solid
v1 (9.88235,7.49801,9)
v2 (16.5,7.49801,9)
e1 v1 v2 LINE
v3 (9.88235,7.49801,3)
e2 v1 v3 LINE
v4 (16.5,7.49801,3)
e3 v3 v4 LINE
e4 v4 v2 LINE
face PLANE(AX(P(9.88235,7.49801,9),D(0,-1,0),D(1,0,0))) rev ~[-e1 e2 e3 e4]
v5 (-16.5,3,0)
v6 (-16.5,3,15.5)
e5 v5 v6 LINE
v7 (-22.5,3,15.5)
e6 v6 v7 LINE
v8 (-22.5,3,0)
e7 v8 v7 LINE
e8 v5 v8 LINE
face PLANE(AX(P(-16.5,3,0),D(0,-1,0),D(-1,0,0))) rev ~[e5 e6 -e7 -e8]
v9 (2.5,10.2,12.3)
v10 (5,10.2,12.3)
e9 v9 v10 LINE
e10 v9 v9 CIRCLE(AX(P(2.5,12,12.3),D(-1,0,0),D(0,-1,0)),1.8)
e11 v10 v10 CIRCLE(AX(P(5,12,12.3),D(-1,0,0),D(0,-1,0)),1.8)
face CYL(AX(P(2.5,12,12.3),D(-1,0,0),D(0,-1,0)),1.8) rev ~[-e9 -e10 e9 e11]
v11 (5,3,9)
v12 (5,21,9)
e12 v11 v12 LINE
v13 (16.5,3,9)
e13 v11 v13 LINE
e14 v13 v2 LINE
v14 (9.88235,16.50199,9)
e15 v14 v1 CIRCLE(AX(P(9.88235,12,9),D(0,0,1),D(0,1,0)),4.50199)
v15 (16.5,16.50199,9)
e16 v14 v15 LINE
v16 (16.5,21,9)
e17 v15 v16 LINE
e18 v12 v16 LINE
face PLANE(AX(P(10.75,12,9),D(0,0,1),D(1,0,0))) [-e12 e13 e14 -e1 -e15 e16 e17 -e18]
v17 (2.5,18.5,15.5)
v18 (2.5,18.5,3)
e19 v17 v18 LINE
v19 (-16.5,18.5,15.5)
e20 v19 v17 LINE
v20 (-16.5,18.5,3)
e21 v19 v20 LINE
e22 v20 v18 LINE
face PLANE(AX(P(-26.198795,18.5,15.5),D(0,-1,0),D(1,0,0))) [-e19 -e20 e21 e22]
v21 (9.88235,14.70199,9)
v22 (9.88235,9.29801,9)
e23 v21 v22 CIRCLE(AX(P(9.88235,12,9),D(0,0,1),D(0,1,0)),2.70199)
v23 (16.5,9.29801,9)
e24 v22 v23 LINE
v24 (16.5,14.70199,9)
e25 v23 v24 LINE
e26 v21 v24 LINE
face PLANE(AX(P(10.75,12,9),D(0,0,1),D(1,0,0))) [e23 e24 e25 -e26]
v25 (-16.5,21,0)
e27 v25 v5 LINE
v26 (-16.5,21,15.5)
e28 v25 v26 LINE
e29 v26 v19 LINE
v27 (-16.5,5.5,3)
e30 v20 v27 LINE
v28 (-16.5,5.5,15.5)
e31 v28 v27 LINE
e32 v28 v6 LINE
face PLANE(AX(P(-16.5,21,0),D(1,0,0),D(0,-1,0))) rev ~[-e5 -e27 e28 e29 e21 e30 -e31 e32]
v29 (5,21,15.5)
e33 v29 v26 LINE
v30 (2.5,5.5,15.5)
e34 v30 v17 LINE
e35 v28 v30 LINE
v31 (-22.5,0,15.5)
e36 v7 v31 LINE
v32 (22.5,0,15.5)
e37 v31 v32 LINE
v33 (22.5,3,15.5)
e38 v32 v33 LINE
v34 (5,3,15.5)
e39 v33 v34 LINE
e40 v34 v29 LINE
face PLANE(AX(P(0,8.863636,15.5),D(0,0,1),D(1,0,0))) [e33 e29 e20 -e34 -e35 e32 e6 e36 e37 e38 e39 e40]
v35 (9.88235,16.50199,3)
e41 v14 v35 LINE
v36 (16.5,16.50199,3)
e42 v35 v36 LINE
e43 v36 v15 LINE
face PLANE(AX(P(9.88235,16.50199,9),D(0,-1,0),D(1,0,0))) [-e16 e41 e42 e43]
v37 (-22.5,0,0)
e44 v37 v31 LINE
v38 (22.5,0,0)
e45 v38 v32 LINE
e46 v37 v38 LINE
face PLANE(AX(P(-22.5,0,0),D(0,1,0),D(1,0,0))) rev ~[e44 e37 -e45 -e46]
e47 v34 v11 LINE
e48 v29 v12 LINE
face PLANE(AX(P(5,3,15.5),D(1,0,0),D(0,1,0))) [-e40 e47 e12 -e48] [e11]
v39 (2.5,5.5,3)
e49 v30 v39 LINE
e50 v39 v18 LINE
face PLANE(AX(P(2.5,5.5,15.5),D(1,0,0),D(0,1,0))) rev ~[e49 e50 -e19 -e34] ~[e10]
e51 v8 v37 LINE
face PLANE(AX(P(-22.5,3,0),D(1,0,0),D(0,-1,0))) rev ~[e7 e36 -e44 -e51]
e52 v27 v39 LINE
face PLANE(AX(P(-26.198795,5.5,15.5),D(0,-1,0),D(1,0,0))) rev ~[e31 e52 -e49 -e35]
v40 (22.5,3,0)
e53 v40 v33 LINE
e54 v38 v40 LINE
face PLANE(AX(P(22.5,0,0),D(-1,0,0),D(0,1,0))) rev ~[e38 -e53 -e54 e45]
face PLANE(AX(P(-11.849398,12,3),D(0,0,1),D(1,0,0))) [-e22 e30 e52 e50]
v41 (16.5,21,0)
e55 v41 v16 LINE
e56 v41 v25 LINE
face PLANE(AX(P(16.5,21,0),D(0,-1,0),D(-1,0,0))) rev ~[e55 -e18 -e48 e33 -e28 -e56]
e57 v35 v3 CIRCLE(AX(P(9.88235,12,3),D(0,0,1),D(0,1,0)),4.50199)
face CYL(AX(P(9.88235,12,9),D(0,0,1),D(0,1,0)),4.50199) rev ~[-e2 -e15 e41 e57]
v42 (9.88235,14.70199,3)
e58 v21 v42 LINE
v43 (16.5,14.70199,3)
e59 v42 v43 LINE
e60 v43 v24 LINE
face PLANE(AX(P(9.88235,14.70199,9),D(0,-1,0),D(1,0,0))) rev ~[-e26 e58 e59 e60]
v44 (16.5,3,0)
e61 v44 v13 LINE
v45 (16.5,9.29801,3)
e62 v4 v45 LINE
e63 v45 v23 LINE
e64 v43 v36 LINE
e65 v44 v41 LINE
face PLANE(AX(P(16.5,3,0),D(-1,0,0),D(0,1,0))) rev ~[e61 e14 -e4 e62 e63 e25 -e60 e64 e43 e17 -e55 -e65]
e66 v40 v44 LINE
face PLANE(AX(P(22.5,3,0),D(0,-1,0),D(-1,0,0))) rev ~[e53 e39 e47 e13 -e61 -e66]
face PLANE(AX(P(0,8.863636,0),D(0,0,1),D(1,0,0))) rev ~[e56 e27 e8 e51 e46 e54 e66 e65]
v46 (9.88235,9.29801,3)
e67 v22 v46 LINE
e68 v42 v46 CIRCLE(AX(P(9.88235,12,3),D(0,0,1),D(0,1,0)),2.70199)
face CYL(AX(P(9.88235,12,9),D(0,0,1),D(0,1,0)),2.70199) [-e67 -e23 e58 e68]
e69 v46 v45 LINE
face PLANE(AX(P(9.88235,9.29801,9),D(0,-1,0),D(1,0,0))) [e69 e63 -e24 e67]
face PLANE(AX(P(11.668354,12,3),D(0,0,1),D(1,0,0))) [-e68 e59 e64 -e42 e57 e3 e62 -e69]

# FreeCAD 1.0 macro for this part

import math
import FreeCAD as App
import Part
import Sketcher
from FreeCAD import Vector


def add_polygon(sketch, points):
    """Adds a closed chain of lines whose ends are joined by coincident constraints."""
    first, n = sketch.GeometryCount, len(points)
    for a, b in zip(points, points[1:] + points[:1]):
        sketch.addGeometry(Part.LineSegment(App.Vector(*a, 0), App.Vector(*b, 0)), False)
    for i in range(n):
        sketch.addConstraint(Sketcher.Constraint("Coincident", first + i, 2, first + (i + 1) % n, 1))

doc = App.newDocument("Part")
params = doc.addObject("Spreadsheet::Sheet", "Params")
for row, (alias, value) in enumerate([
    ("sketch1_width", "6 mm"),
    ("sketch1_width2", "45 mm"),
    ("sketch1_height", "3 mm"),
    ("sketch1_height2", "18 mm"),
    ("pad1_length", "15.5 mm"),
    ("sketch2_height", "18 mm"),
    ("sketch2_width", "11.5 mm"),
    ("pocket1_length", "6.5 mm"),
    ("sketch3_height", "13 mm"),
    ("pocket2_length", "12.5 mm"),
    ("sketch4_diameter", "3.6 mm"),
    ("pocket3_length", "2.5 mm"),
    ("sketch5_height", "1.8 mm"),
    ("pocket4_length", "6 mm"),
], start=1):
    params.set(f"A{row}", alias)
    params.set(f"B{row}", "=" + value)
    params.setAlias(f"B{row}", alias)

body = doc.addObject("PartDesign::Body", "Body")

sketch1 = doc.addObject("Sketcher::SketchObject", "Sketch")
body.addObject(sketch1)
sketch1.AttachmentSupport = (doc.XY_Plane, [""])
sketch1.MapMode = "FlatFace"
add_polygon(sketch1, [(-16.5, 3), (-22.5, 3), (-22.5, 0), (22.5, 0), (22.5, 3), (16.5, 3), (16.5, 21), (-16.5, 21)])
sketch1.addConstraint(Sketcher.Constraint("Horizontal", 0))
sketch1.addConstraint(Sketcher.Constraint("Vertical", 1))
sketch1.addConstraint(Sketcher.Constraint("Horizontal", 2))
sketch1.addConstraint(Sketcher.Constraint("Vertical", 3))
sketch1.addConstraint(Sketcher.Constraint("Horizontal", 4))
sketch1.addConstraint(Sketcher.Constraint("Vertical", 5))
sketch1.addConstraint(Sketcher.Constraint("Horizontal", 6))
sketch1.addConstraint(Sketcher.Constraint("Vertical", 7))
sketch1.addConstraint(Sketcher.Constraint("Symmetric", 1, 2, 2, 2, -1, 1))
sketch1.addConstraint(Sketcher.Constraint("Symmetric", 4, 2, 7, 2, -2))
sketch1.addConstraint(Sketcher.Constraint("DistanceX", 0, 2, 0, 1, 6.0))
sketch1.addConstraint(Sketcher.Constraint("DistanceX", 2, 1, 2, 2, 45.0))
sketch1.addConstraint(Sketcher.Constraint("DistanceY", 1, 2, 1, 1, 3.0))
sketch1.addConstraint(Sketcher.Constraint("DistanceY", 5, 1, 5, 2, 18.0))
sketch1.setExpression("Constraints[18]", "Params.sketch1_width")
sketch1.setExpression("Constraints[19]", "Params.sketch1_width2")
sketch1.setExpression("Constraints[20]", "Params.sketch1_height")
sketch1.setExpression("Constraints[21]", "Params.sketch1_height2")
pad1 = doc.addObject("PartDesign::Pad", "Pad")
body.addObject(pad1)
pad1.Profile = sketch1
pad1.setExpression("Length", "Params.pad1_length")

sketch2 = doc.addObject("Sketcher::SketchObject", "Sketch001")
body.addObject(sketch2)
sketch2.AttachmentSupport = (doc.XY_Plane, [""])
sketch2.MapMode = "FlatFace"
sketch2.AttachmentOffset = App.Placement(Vector(0, 0, 15.5), App.Rotation())
add_polygon(sketch2, [(5, 21), (5, 3), (16, 3), (16, 21)])
sketch2.addConstraint(Sketcher.Constraint("Vertical", 0))
sketch2.addConstraint(Sketcher.Constraint("Horizontal", 1))
sketch2.addConstraint(Sketcher.Constraint("Vertical", 2))
sketch2.addConstraint(Sketcher.Constraint("Horizontal", 3))
sketch2.addConstraint(Sketcher.Constraint("DistanceY", 0, 2, 0, 1, 18.0))
sketch2.addConstraint(Sketcher.Constraint("DistanceX", 1, 1, 1, 2, 11.5))
sketch2.addConstraint(Sketcher.Constraint("DistanceX", -1, 1, 0, 2, 5.0))
sketch2.addConstraint(Sketcher.Constraint("DistanceY", -1, 1, 0, 2, 3.0))
sketch2.setExpression("Constraints[8]", "Params.sketch2_height")
sketch2.setExpression("Constraints[9]", "Params.sketch2_width")
pocket1 = doc.addObject("PartDesign::Pocket", "Pocket")
body.addObject(pocket1)
pocket1.Profile = sketch2
pocket1.setExpression("Length", "Params.pocket1_length")

sketch3 = doc.addObject("Sketcher::SketchObject", "Sketch002")
body.addObject(sketch3)
sketch3.AttachmentSupport = (doc.XY_Plane, [""])
sketch3.MapMode = "FlatFace"
sketch3.AttachmentOffset = App.Placement(Vector(0, 0, 15.5), App.Rotation())
add_polygon(sketch3, [(-26, 18), (-26, 6), (2, 6), (2, 18)])
sketch3.addConstraint(Sketcher.Constraint("Vertical", 0))
sketch3.addConstraint(Sketcher.Constraint("Horizontal", 1))
sketch3.addConstraint(Sketcher.Constraint("Vertical", 2))
sketch3.addConstraint(Sketcher.Constraint("Horizontal", 3))
sketch3.addConstraint(Sketcher.Constraint("DistanceY", 0, 2, 0, 1, 13.0))
sketch3.addConstraint(Sketcher.Constraint("DistanceY", -1, 1, 0, 2, 5.5))
sketch3.addConstraint(Sketcher.Constraint("DistanceX", -1, 1, 1, 2, 2.5))
sketch3.addConstraint(Sketcher.Constraint("DistanceX", 1, 1, 1, 2, 28.698795))
sketch3.setExpression("Constraints[8]", "Params.sketch3_height")
pocket2 = doc.addObject("PartDesign::Pocket", "Pocket001")
body.addObject(pocket2)
pocket2.Profile = sketch3
pocket2.setExpression("Length", "Params.pocket2_length")

sketch4 = doc.addObject("Sketcher::SketchObject", "Sketch003")
body.addObject(sketch4)
sketch4.AttachmentSupport = (doc.YZ_Plane, [""])
sketch4.MapMode = "FlatFace"
sketch4.AttachmentOffset = App.Placement(Vector(0, 0, 2.5), App.Rotation())
sketch4.addGeometry(Part.Circle(Vector(12, 12.3, 0), Vector(0, 0, 1), 1.8), False)
sketch4.addConstraint(Sketcher.Constraint("Diameter", 0, 3.6))
sketch4.addConstraint(Sketcher.Constraint("DistanceX", -1, 1, 0, 3, 12.0))
sketch4.addConstraint(Sketcher.Constraint("DistanceY", -1, 1, 0, 3, 12.3))
sketch4.setExpression("Constraints[0]", "Params.sketch4_diameter")
pocket3 = doc.addObject("PartDesign::Pocket", "Pocket002")
body.addObject(pocket3)
pocket3.Profile = sketch4
pocket3.setExpression("Length", "Params.pocket3_length")
pocket3.Reversed = True

sketch5 = doc.addObject("Sketcher::SketchObject", "Sketch004")
body.addObject(sketch5)
sketch5.AttachmentSupport = (doc.XY_Plane, [""])
sketch5.MapMode = "FlatFace"
sketch5.AttachmentOffset = App.Placement(Vector(0, 0, 9), App.Rotation())
sketch5.addGeometry(Part.ArcOfCircle(Part.Circle(Vector(9.9, 12, 0), Vector(0, 0, 1), 4.5), math.radians(90), math.radians(270)), False)
sketch5.addGeometry(Part.LineSegment(Vector(9.9, 7.5, 0), Vector(17.6, 7.5, 0)), False)
sketch5.addGeometry(Part.LineSegment(Vector(17.6, 7.5, 0), Vector(17.6, 9.3, 0)), False)
sketch5.addGeometry(Part.LineSegment(Vector(17.6, 9.3, 0), Vector(9.9, 9.3, 0)), False)
sketch5.addGeometry(Part.ArcOfCircle(Part.Circle(Vector(9.9, 12, 0), Vector(0, 0, 1), 2.7), math.radians(90), math.radians(270)), False)
sketch5.addGeometry(Part.LineSegment(Vector(9.9, 14.7, 0), Vector(17.6, 14.7, 0)), False)
sketch5.addGeometry(Part.LineSegment(Vector(17.6, 14.7, 0), Vector(17.6, 16.5, 0)), False)
sketch5.addGeometry(Part.LineSegment(Vector(17.6, 16.5, 0), Vector(9.9, 16.5, 0)), False)
sketch5.addConstraint(Sketcher.Constraint("Tangent", 0, 2, 1, 1))
sketch5.addConstraint(Sketcher.Constraint("Coincident", 1, 2, 2, 1))
sketch5.addConstraint(Sketcher.Constraint("Coincident", 2, 2, 3, 1))
sketch5.addConstraint(Sketcher.Constraint("Tangent", 3, 2, 4, 2))
sketch5.addConstraint(Sketcher.Constraint("Tangent", 4, 1, 5, 1))
sketch5.addConstraint(Sketcher.Constraint("Coincident", 5, 2, 6, 1))
sketch5.addConstraint(Sketcher.Constraint("Coincident", 6, 2, 7, 1))
sketch5.addConstraint(Sketcher.Constraint("Tangent", 7, 2, 0, 1))
sketch5.addConstraint(Sketcher.Constraint("Horizontal", 1))
sketch5.addConstraint(Sketcher.Constraint("Vertical", 2))
sketch5.addConstraint(Sketcher.Constraint("Horizontal", 3))
sketch5.addConstraint(Sketcher.Constraint("Horizontal", 5))
sketch5.addConstraint(Sketcher.Constraint("Vertical", 6))
sketch5.addConstraint(Sketcher.Constraint("Horizontal", 7))
sketch5.addConstraint(Sketcher.Constraint("Coincident", 4, 3, 0, 3))
sketch5.addConstraint(Sketcher.Constraint("Vertical", 2, 2, 5, 2))
sketch5.addConstraint(Sketcher.Constraint("DistanceY", 2, 1, 2, 2, 1.8))
sketch5.addConstraint(Sketcher.Constraint("DistanceY", -1, 1, 0, 3, 12.0))
sketch5.addConstraint(Sketcher.Constraint("Radius", 0, 4.50199))
sketch5.addConstraint(Sketcher.Constraint("DistanceX", 1, 1, 1, 2, 7.754372))
sketch5.addConstraint(Sketcher.Constraint("DistanceX", -1, 1, 0, 3, 9.88235))
sketch5.setExpression("Constraints[16]", "Params.sketch5_height")
pocket4 = doc.addObject("PartDesign::Pocket", "Pocket003")
body.addObject(pocket4)
pocket4.Profile = sketch5
pocket4.setExpression("Length", "Params.pocket4_length")

doc.recompute()
